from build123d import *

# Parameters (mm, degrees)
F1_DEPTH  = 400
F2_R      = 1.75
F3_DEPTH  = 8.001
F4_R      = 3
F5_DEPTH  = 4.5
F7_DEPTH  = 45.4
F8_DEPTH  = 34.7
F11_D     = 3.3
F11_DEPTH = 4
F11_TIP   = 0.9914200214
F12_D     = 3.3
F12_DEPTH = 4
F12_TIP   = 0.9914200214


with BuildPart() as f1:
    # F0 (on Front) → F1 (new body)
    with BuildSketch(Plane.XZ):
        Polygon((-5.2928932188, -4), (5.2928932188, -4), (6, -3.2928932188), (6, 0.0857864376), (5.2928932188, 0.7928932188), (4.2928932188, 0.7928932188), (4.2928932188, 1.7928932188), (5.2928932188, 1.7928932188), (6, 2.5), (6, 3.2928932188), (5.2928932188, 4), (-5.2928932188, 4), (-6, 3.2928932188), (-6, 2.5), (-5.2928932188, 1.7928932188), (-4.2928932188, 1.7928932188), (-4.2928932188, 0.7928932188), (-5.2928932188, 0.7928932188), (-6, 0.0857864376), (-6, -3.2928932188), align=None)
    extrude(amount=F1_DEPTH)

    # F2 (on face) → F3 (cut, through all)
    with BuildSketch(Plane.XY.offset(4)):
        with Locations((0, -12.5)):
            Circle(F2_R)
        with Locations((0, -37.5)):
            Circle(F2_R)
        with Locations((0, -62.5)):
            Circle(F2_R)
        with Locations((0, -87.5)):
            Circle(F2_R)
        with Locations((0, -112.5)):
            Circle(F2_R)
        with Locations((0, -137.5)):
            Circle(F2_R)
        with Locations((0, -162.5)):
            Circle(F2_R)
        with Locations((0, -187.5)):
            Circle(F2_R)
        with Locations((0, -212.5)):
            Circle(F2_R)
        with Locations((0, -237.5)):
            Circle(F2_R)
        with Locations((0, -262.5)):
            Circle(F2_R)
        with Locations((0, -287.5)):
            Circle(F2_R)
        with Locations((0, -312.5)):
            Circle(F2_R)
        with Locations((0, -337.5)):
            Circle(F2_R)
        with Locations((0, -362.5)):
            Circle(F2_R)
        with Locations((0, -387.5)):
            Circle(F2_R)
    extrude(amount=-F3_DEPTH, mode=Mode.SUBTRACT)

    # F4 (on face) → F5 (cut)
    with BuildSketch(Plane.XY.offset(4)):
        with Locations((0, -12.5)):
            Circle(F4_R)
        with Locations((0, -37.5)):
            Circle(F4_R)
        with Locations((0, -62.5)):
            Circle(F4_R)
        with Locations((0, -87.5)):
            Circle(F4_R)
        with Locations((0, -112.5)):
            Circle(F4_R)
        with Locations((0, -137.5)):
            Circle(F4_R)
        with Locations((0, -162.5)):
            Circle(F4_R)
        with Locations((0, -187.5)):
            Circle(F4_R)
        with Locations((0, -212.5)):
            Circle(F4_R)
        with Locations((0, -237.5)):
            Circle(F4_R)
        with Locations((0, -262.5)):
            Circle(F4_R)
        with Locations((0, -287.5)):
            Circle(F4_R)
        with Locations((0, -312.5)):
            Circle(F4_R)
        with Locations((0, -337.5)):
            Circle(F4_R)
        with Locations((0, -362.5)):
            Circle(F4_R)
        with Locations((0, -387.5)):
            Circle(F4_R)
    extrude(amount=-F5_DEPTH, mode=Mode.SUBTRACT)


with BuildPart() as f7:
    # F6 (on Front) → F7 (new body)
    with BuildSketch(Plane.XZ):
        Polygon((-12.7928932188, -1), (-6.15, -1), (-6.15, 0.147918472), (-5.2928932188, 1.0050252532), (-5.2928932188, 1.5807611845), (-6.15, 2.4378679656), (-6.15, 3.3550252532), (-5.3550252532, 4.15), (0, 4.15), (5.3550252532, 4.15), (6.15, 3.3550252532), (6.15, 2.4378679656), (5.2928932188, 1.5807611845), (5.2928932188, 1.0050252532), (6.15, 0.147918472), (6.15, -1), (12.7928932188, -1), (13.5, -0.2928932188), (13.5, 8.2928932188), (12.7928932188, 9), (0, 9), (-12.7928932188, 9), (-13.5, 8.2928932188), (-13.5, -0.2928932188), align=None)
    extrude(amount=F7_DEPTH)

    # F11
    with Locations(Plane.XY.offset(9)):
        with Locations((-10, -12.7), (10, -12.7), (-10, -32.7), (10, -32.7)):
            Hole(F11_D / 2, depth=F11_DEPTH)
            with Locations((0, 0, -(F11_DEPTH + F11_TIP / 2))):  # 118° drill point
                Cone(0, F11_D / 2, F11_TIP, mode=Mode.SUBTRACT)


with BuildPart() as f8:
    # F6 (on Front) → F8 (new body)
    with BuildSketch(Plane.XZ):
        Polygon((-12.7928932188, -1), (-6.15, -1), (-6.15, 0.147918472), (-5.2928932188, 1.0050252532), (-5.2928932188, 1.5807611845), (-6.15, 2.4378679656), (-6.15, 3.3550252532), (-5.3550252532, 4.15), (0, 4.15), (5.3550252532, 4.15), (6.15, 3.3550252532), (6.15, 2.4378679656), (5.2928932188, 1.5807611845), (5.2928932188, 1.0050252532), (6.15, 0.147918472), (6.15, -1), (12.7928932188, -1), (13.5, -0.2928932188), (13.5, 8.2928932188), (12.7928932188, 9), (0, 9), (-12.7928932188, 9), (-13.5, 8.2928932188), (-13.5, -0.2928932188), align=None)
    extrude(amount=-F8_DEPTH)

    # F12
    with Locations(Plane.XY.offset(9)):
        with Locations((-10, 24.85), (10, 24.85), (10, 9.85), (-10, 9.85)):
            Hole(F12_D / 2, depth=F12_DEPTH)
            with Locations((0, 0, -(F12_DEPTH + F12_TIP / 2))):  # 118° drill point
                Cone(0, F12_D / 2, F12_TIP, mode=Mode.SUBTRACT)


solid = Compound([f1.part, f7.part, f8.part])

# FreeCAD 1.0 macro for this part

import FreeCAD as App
import Part
import Sketcher
from FreeCAD import Vector
Q = App.Units.Quantity


def add_polygon(sketch, points):
    """Adds a closed chain of lines whose ends are joined by coincident constraints."""
    first, n = sketch.GeometryCount, len(points)
    for a, b in zip(points, points[1:] + points[:1]):
        sketch.addGeometry(Part.LineSegment(App.Vector(*a, 0), App.Vector(*b, 0)), False)
    for i in range(n):
        sketch.addConstraint(Sketcher.Constraint("Coincident", first + i, 2, first + (i + 1) % n, 1))

doc = App.newDocument("Part")
body = doc.addObject("PartDesign::Body", "Body")

# Sketch on XZ plane
sketch1 = body.newObject("Sketcher::SketchObject", "Sketch")
sketch1.AttachmentSupport = (doc.getObject("XZ_Plane"), [""])
sketch1.MapMode = "FlatFace"
add_polygon(sketch1, [(-5.3, -4), (5.3, -4), (6, -3.3), (6, 0.1), (5.3, 0.8), (4.3, 0.8), (4.3, 1.8), (5.3, 1.8), (6, 2.5), (6, 3.3), (5.3, 4), (-5.3, 4), (-6, 3.3), (-6, 2.5), (-5.3, 1.8), (-4.3, 1.8), (-4.3, 0.8), (-5.3, 0.8), (-6, 0.1), (-6, -3.3)])  # lines 0-19
sketch1.addConstraint(Sketcher.Constraint("Horizontal", 0))
sketch1.addConstraint(Sketcher.Constraint("Vertical", 2))
sketch1.addConstraint(Sketcher.Constraint("Horizontal", 4))
sketch1.addConstraint(Sketcher.Constraint("Vertical", 5))
sketch1.addConstraint(Sketcher.Constraint("Horizontal", 6))
sketch1.addConstraint(Sketcher.Constraint("Vertical", 8))
sketch1.addConstraint(Sketcher.Constraint("Horizontal", 10))
sketch1.addConstraint(Sketcher.Constraint("Vertical", 12))
sketch1.addConstraint(Sketcher.Constraint("Horizontal", 14))
sketch1.addConstraint(Sketcher.Constraint("Vertical", 15))
sketch1.addConstraint(Sketcher.Constraint("Horizontal", 16))
sketch1.addConstraint(Sketcher.Constraint("Vertical", 18))
sketch1.addConstraint(Sketcher.Constraint("Symmetric", 0, 2, 10, 2, -1, 1))
sketch1.addConstraint(Sketcher.Constraint("Symmetric", 1, 2, 11, 2, -1, 1))
sketch1.addConstraint(Sketcher.Constraint("Symmetric", 8, 2, 18, 2, -1, 1))
sketch1.addConstraint(Sketcher.Constraint("Symmetric", 8, 2, 11, 2, -2))
sketch1.addConstraint(Sketcher.Constraint("Symmetric", 6, 2, 13, 2, -2))
sketch1.addConstraint(Sketcher.Constraint("Symmetric", 4, 2, 15, 2, -2))
sketch1.addConstraint(Sketcher.Constraint("Perpendicular", 1, 3))
sketch1.addConstraint(Sketcher.Constraint("Perpendicular", 3, 7))
sketch1.addConstraint(Sketcher.Constraint("Perpendicular", 7, 9))
sketch1.addConstraint(Sketcher.Constraint("Perpendicular", 11, 13))
sketch1.addConstraint(Sketcher.Constraint("Perpendicular", 13, 17))
sketch1.addConstraint(Sketcher.Constraint("Perpendicular", 17, 19))
sketch1.addConstraint(Sketcher.Constraint("Horizontal", 7, 2, 12, 2))
sketch1.addConstraint(Sketcher.Constraint("Horizontal", 2, 2, 17, 2))
sketch1.addConstraint(Sketcher.Constraint("Vertical", 0, 2, 3, 2))
sketch1.addConstraint(Sketcher.Constraint("Vertical", 3, 2, 6, 2))
sketch1.addConstraint(Sketcher.Constraint("Equal", 16, 5))
sketch1.addConstraint(Sketcher.Constraint("DistanceX", 4, 2, 4, 1, Q("1 mm")))
sketch1.addConstraint(Sketcher.Constraint("Distance", 1, Q("1 mm")))
sketch1.addConstraint(Sketcher.Constraint("DistanceY", 0, 2, -1, 1, Q("4 mm")))
sketch1.addConstraint(Sketcher.Constraint("DistanceX", -1, 1, 1, 2, Q("6 mm")))
sketch1.addConstraint(Sketcher.Constraint("DistanceY", -1, 1, 7, 2, Q("2.5 mm")))
pad1 = body.newObject("PartDesign::Pad", "Pad")
pad1.Profile = sketch1
pad1.Length = 400

# Sketch on XY plane
sketch2 = body.newObject("Sketcher::SketchObject", "Sketch001")
sketch2.AttachmentSupport = (doc.getObject("XY_Plane"), [""])
sketch2.MapMode = "FlatFace"
sketch2.AttachmentOffset = App.Placement(Vector(0, 0, 4), App.Rotation())
sketch2.addGeometry(Part.Circle(Vector(0, -12.5, 0), Vector(0, 0, 1), 1.8), False)
sketch2.addGeometry(Part.Circle(Vector(0, -37.5, 0), Vector(0, 0, 1), 1.8), False)
sketch2.addGeometry(Part.Circle(Vector(0, -62.5, 0), Vector(0, 0, 1), 1.8), False)
sketch2.addGeometry(Part.Circle(Vector(0, -87.5, 0), Vector(0, 0, 1), 1.8), False)
sketch2.addGeometry(Part.Circle(Vector(0, -112.5, 0), Vector(0, 0, 1), 1.8), False)
sketch2.addGeometry(Part.Circle(Vector(0, -137.5, 0), Vector(0, 0, 1), 1.8), False)
sketch2.addGeometry(Part.Circle(Vector(0, -162.5, 0), Vector(0, 0, 1), 1.8), False)
sketch2.addGeometry(Part.Circle(Vector(0, -187.5, 0), Vector(0, 0, 1), 1.8), False)
sketch2.addGeometry(Part.Circle(Vector(0, -212.5, 0), Vector(0, 0, 1), 1.8), False)
sketch2.addGeometry(Part.Circle(Vector(0, -237.5, 0), Vector(0, 0, 1), 1.8), False)
sketch2.addGeometry(Part.Circle(Vector(0, -262.5, 0), Vector(0, 0, 1), 1.8), False)
sketch2.addGeometry(Part.Circle(Vector(0, -287.5, 0), Vector(0, 0, 1), 1.8), False)
sketch2.addGeometry(Part.Circle(Vector(0, -312.5, 0), Vector(0, 0, 1), 1.8), False)
sketch2.addGeometry(Part.Circle(Vector(0, -337.5, 0), Vector(0, 0, 1), 1.8), False)
sketch2.addGeometry(Part.Circle(Vector(0, -362.5, 0), Vector(0, 0, 1), 1.8), False)
sketch2.addGeometry(Part.Circle(Vector(0, -387.5, 0), Vector(0, 0, 1), 1.8), False)
sketch2.addConstraint(Sketcher.Constraint("Equal", 0, 1))
sketch2.addConstraint(Sketcher.Constraint("Equal", 1, 2))
sketch2.addConstraint(Sketcher.Constraint("Equal", 2, 3))
sketch2.addConstraint(Sketcher.Constraint("Equal", 3, 4))
sketch2.addConstraint(Sketcher.Constraint("Equal", 4, 5))
sketch2.addConstraint(Sketcher.Constraint("Equal", 5, 6))
sketch2.addConstraint(Sketcher.Constraint("Equal", 6, 7))
sketch2.addConstraint(Sketcher.Constraint("Equal", 7, 8))
sketch2.addConstraint(Sketcher.Constraint("Equal", 8, 9))
sketch2.addConstraint(Sketcher.Constraint("Equal", 9, 10))
sketch2.addConstraint(Sketcher.Constraint("Equal", 10, 11))
sketch2.addConstraint(Sketcher.Constraint("Equal", 11, 12))
sketch2.addConstraint(Sketcher.Constraint("Equal", 12, 13))
sketch2.addConstraint(Sketcher.Constraint("Equal", 13, 14))
sketch2.addConstraint(Sketcher.Constraint("Equal", 14, 15))
sketch2.addConstraint(Sketcher.Constraint("PointOnObject", 0, 3, -2))
sketch2.addConstraint(Sketcher.Constraint("PointOnObject", 1, 3, -2))
sketch2.addConstraint(Sketcher.Constraint("PointOnObject", 2, 3, -2))
sketch2.addConstraint(Sketcher.Constraint("PointOnObject", 3, 3, -2))
sketch2.addConstraint(Sketcher.Constraint("PointOnObject", 4, 3, -2))
sketch2.addConstraint(Sketcher.Constraint("PointOnObject", 5, 3, -2))
sketch2.addConstraint(Sketcher.Constraint("PointOnObject", 6, 3, -2))
sketch2.addConstraint(Sketcher.Constraint("PointOnObject", 7, 3, -2))
sketch2.addConstraint(Sketcher.Constraint("PointOnObject", 8, 3, -2))
sketch2.addConstraint(Sketcher.Constraint("PointOnObject", 9, 3, -2))
sketch2.addConstraint(Sketcher.Constraint("PointOnObject", 10, 3, -2))
sketch2.addConstraint(Sketcher.Constraint("PointOnObject", 11, 3, -2))
sketch2.addConstraint(Sketcher.Constraint("PointOnObject", 12, 3, -2))
sketch2.addConstraint(Sketcher.Constraint("PointOnObject", 13, 3, -2))
sketch2.addConstraint(Sketcher.Constraint("PointOnObject", 14, 3, -2))
sketch2.addConstraint(Sketcher.Constraint("PointOnObject", 15, 3, -2))
sketch2.addConstraint(Sketcher.Constraint("Diameter", 0, Q("3.5 mm")))
sketch2.addConstraint(Sketcher.Constraint("DistanceY", 1, 3, 0, 3, Q("25 mm")))
sketch2.addConstraint(Sketcher.Constraint("DistanceY", 2, 3, 1, 3, Q("25 mm")))
sketch2.addConstraint(Sketcher.Constraint("DistanceY", 3, 3, 2, 3, Q("25 mm")))
sketch2.addConstraint(Sketcher.Constraint("DistanceY", 4, 3, 3, 3, Q("25 mm")))
sketch2.addConstraint(Sketcher.Constraint("DistanceY", 5, 3, 4, 3, Q("25 mm")))
sketch2.addConstraint(Sketcher.Constraint("DistanceY", 6, 3, 5, 3, Q("25 mm")))
sketch2.addConstraint(Sketcher.Constraint("DistanceY", 7, 3, 6, 3, Q("25 mm")))
sketch2.addConstraint(Sketcher.Constraint("DistanceY", 8, 3, 7, 3, Q("25 mm")))
sketch2.addConstraint(Sketcher.Constraint("DistanceY", 9, 3, 8, 3, Q("25 mm")))
sketch2.addConstraint(Sketcher.Constraint("DistanceY", 10, 3, 9, 3, Q("25 mm")))
sketch2.addConstraint(Sketcher.Constraint("DistanceY", 11, 3, 10, 3, Q("25 mm")))
sketch2.addConstraint(Sketcher.Constraint("DistanceY", 12, 3, 11, 3, Q("25 mm")))
sketch2.addConstraint(Sketcher.Constraint("DistanceY", 13, 3, 12, 3, Q("25 mm")))
sketch2.addConstraint(Sketcher.Constraint("DistanceY", 14, 3, 13, 3, Q("25 mm")))
sketch2.addConstraint(Sketcher.Constraint("DistanceY", 15, 3, 14, 3, Q("25 mm")))
sketch2.addConstraint(Sketcher.Constraint("DistanceY", 0, 3, -1, 1, Q("12.5 mm")))
pocket1 = body.newObject("PartDesign::Pocket", "Pocket")
pocket1.Profile = sketch2
pocket1.Type = "ThroughAll"

# Sketch on XY plane
sketch3 = body.newObject("Sketcher::SketchObject", "Sketch002")
sketch3.AttachmentSupport = (doc.getObject("XY_Plane"), [""])
sketch3.MapMode = "FlatFace"
sketch3.AttachmentOffset = App.Placement(Vector(0, 0, 4), App.Rotation())
sketch3.addGeometry(Part.Circle(Vector(0, -12.5, 0), Vector(0, 0, 1), 3), False)
sketch3.addGeometry(Part.Circle(Vector(0, -37.5, 0), Vector(0, 0, 1), 3), False)
sketch3.addGeometry(Part.Circle(Vector(0, -62.5, 0), Vector(0, 0, 1), 3), False)
sketch3.addGeometry(Part.Circle(Vector(0, -87.5, 0), Vector(0, 0, 1), 3), False)
sketch3.addGeometry(Part.Circle(Vector(0, -112.5, 0), Vector(0, 0, 1), 3), False)
sketch3.addGeometry(Part.Circle(Vector(0, -137.5, 0), Vector(0, 0, 1), 3), False)
sketch3.addGeometry(Part.Circle(Vector(0, -162.5, 0), Vector(0, 0, 1), 3), False)
sketch3.addGeometry(Part.Circle(Vector(0, -187.5, 0), Vector(0, 0, 1), 3), False)
sketch3.addGeometry(Part.Circle(Vector(0, -212.5, 0), Vector(0, 0, 1), 3), False)
sketch3.addGeometry(Part.Circle(Vector(0, -237.5, 0), Vector(0, 0, 1), 3), False)
sketch3.addGeometry(Part.Circle(Vector(0, -262.5, 0), Vector(0, 0, 1), 3), False)
sketch3.addGeometry(Part.Circle(Vector(0, -287.5, 0), Vector(0, 0, 1), 3), False)
sketch3.addGeometry(Part.Circle(Vector(0, -312.5, 0), Vector(0, 0, 1), 3), False)
sketch3.addGeometry(Part.Circle(Vector(0, -337.5, 0), Vector(0, 0, 1), 3), False)
sketch3.addGeometry(Part.Circle(Vector(0, -362.5, 0), Vector(0, 0, 1), 3), False)
sketch3.addGeometry(Part.Circle(Vector(0, -387.5, 0), Vector(0, 0, 1), 3), False)
sketch3.addConstraint(Sketcher.Constraint("Equal", 0, 1))
sketch3.addConstraint(Sketcher.Constraint("Equal", 1, 2))
sketch3.addConstraint(Sketcher.Constraint("Equal", 2, 3))
sketch3.addConstraint(Sketcher.Constraint("Equal", 3, 4))
sketch3.addConstraint(Sketcher.Constraint("Equal", 4, 5))
sketch3.addConstraint(Sketcher.Constraint("Equal", 5, 6))
sketch3.addConstraint(Sketcher.Constraint("Equal", 6, 7))
sketch3.addConstraint(Sketcher.Constraint("Equal", 7, 8))
sketch3.addConstraint(Sketcher.Constraint("Equal", 8, 9))
sketch3.addConstraint(Sketcher.Constraint("Equal", 9, 10))
sketch3.addConstraint(Sketcher.Constraint("Equal", 10, 11))
sketch3.addConstraint(Sketcher.Constraint("Equal", 11, 12))
sketch3.addConstraint(Sketcher.Constraint("Equal", 12, 13))
sketch3.addConstraint(Sketcher.Constraint("Equal", 13, 14))
sketch3.addConstraint(Sketcher.Constraint("Equal", 14, 15))
sketch3.addConstraint(Sketcher.Constraint("PointOnObject", 0, 3, -2))
sketch3.addConstraint(Sketcher.Constraint("PointOnObject", 1, 3, -2))
sketch3.addConstraint(Sketcher.Constraint("PointOnObject", 2, 3, -2))
sketch3.addConstraint(Sketcher.Constraint("PointOnObject", 3, 3, -2))
sketch3.addConstraint(Sketcher.Constraint("PointOnObject", 4, 3, -2))
sketch3.addConstraint(Sketcher.Constraint("PointOnObject", 5, 3, -2))
sketch3.addConstraint(Sketcher.Constraint("PointOnObject", 6, 3, -2))
sketch3.addConstraint(Sketcher.Constraint("PointOnObject", 7, 3, -2))
sketch3.addConstraint(Sketcher.Constraint("PointOnObject", 8, 3, -2))
sketch3.addConstraint(Sketcher.Constraint("PointOnObject", 9, 3, -2))
sketch3.addConstraint(Sketcher.Constraint("PointOnObject", 10, 3, -2))
sketch3.addConstraint(Sketcher.Constraint("PointOnObject", 11, 3, -2))
sketch3.addConstraint(Sketcher.Constraint("PointOnObject", 12, 3, -2))
sketch3.addConstraint(Sketcher.Constraint("PointOnObject", 13, 3, -2))
sketch3.addConstraint(Sketcher.Constraint("PointOnObject", 14, 3, -2))
sketch3.addConstraint(Sketcher.Constraint("PointOnObject", 15, 3, -2))
sketch3.addConstraint(Sketcher.Constraint("Diameter", 0, Q("6 mm")))
sketch3.addConstraint(Sketcher.Constraint("DistanceY", 1, 3, 0, 3, Q("25 mm")))
sketch3.addConstraint(Sketcher.Constraint("DistanceY", 2, 3, 1, 3, Q("25 mm")))
sketch3.addConstraint(Sketcher.Constraint("DistanceY", 3, 3, 2, 3, Q("25 mm")))
sketch3.addConstraint(Sketcher.Constraint("DistanceY", 4, 3, 3, 3, Q("25 mm")))
sketch3.addConstraint(Sketcher.Constraint("DistanceY", 5, 3, 4, 3, Q("25 mm")))
sketch3.addConstraint(Sketcher.Constraint("DistanceY", 6, 3, 5, 3, Q("25 mm")))
sketch3.addConstraint(Sketcher.Constraint("DistanceY", 7, 3, 6, 3, Q("25 mm")))
sketch3.addConstraint(Sketcher.Constraint("DistanceY", 8, 3, 7, 3, Q("25 mm")))
sketch3.addConstraint(Sketcher.Constraint("DistanceY", 9, 3, 8, 3, Q("25 mm")))
sketch3.addConstraint(Sketcher.Constraint("DistanceY", 10, 3, 9, 3, Q("25 mm")))
sketch3.addConstraint(Sketcher.Constraint("DistanceY", 11, 3, 10, 3, Q("25 mm")))
sketch3.addConstraint(Sketcher.Constraint("DistanceY", 12, 3, 11, 3, Q("25 mm")))
sketch3.addConstraint(Sketcher.Constraint("DistanceY", 13, 3, 12, 3, Q("25 mm")))
sketch3.addConstraint(Sketcher.Constraint("DistanceY", 14, 3, 13, 3, Q("25 mm")))
sketch3.addConstraint(Sketcher.Constraint("DistanceY", 15, 3, 14, 3, Q("25 mm")))
sketch3.addConstraint(Sketcher.Constraint("DistanceY", 0, 3, -1, 1, Q("12.5 mm")))
pocket2 = body.newObject("PartDesign::Pocket", "Pocket001")
pocket2.Profile = sketch3
pocket2.Length = 4.5
body2 = doc.addObject("PartDesign::Body", "Body001")

# Sketch on XZ plane
sketch4 = body2.newObject("Sketcher::SketchObject", "Sketch003")
sketch4.AttachmentSupport = (doc.getObject("XZ_Plane001"), [""])
sketch4.MapMode = "FlatFace"
add_polygon(sketch4, [(-12.8, -1), (-6.2, -1), (-6.2, 0.1), (-5.3, 1), (-5.3, 1.6), (-6.2, 2.4), (-6.2, 3.4), (-5.4, 4.2), (5.4, 4.2), (6.2, 3.4), (6.2, 2.4), (5.3, 1.6), (5.3, 1), (6.2, 0.1), (6.2, -1), (12.8, -1), (13.5, -0.3), (13.5, 8.3), (12.8, 9), (-12.8, 9), (-13.5, 8.3), (-13.5, -0.3)])  # lines 0-21
sketch4.addConstraint(Sketcher.Constraint("Horizontal", 0))
sketch4.addConstraint(Sketcher.Constraint("Vertical", 1))
sketch4.addConstraint(Sketcher.Constraint("Vertical", 3))
sketch4.addConstraint(Sketcher.Constraint("Vertical", 5))
sketch4.addConstraint(Sketcher.Constraint("Horizontal", 7))
sketch4.addConstraint(Sketcher.Constraint("Vertical", 9))
sketch4.addConstraint(Sketcher.Constraint("Vertical", 11))
sketch4.addConstraint(Sketcher.Constraint("Vertical", 13))
sketch4.addConstraint(Sketcher.Constraint("Horizontal", 14))
sketch4.addConstraint(Sketcher.Constraint("Vertical", 16))
sketch4.addConstraint(Sketcher.Constraint("Horizontal", 18))
sketch4.addConstraint(Sketcher.Constraint("Vertical", 20))
sketch4.addConstraint(Sketcher.Constraint("Symmetric", 5, 2, 8, 2, -2))
sketch4.addConstraint(Sketcher.Constraint("Symmetric", 3, 2, 10, 2, -2))
sketch4.addConstraint(Sketcher.Constraint("Symmetric", 1, 2, 12, 2, -2))
sketch4.addConstraint(Sketcher.Constraint("Symmetric", 16, 2, 19, 2, -2))
sketch4.addConstraint(Sketcher.Constraint("Symmetric", 14, 2, 21, 2, -2))
sketch4.addConstraint(Sketcher.Constraint("Perpendicular", 2, 4))
sketch4.addConstraint(Sketcher.Constraint("Perpendicular", 4, 6))
sketch4.addConstraint(Sketcher.Constraint("Perpendicular", 6, 8))
sketch4.addConstraint(Sketcher.Constraint("Perpendicular", 8, 10))
sketch4.addConstraint(Sketcher.Constraint("Perpendicular", 10, 12))
sketch4.addConstraint(Sketcher.Constraint("Perpendicular", 12, 15))
sketch4.addConstraint(Sketcher.Constraint("Perpendicular", 15, 17))
sketch4.addConstraint(Sketcher.Constraint("Perpendicular", 17, 19))
sketch4.addConstraint(Sketcher.Constraint("Perpendicular", 19, 21))
sketch4.addConstraint(Sketcher.Constraint("Horizontal", 4, 2, 9, 2))
sketch4.addConstraint(Sketcher.Constraint("Vertical", 1, 2, 4, 2))
sketch4.addConstraint(Sketcher.Constraint("Vertical", 14, 2, 17, 2))
sketch4.addConstraint(Sketcher.Constraint("Distance", 15, Q("1 mm")))
sketch4.addConstraint(Sketcher.Constraint("DistanceY", 0, 2, -1, 1, Q("1 mm")))
sketch4.addConstraint(Sketcher.Constraint("DistanceY", -1, 1, 17, 2, Q("9 mm")))
sketch4.addConstraint(Sketcher.Constraint("DistanceX", -1, 1, 15, 2, Q("13.5 mm")))
sketch4.addConstraint(Sketcher.Constraint("DistanceX", 5, 2, 8, 2, Q("12.3 mm")))
sketch4.addConstraint(Sketcher.Constraint("DistanceX", 11, 2, 14, 2, Q("7.5 mm")))
sketch4.addConstraint(Sketcher.Constraint("DistanceY", -1, 1, 6, 2, Q("4.15 mm")))
sketch4.addConstraint(Sketcher.Constraint("DistanceY", 2, 2, 5, 2, Q("2.35 mm")))
sketch4.addConstraint(Sketcher.Constraint("DistanceX", 7, 1, 7, 2, Q("10.710051 mm")))
sketch4.addConstraint(Sketcher.Constraint("DistanceY", 3, 1, 3, 2, Q("0.575736 mm")))
pad2 = body2.newObject("PartDesign::Pad", "Pad001")
pad2.Profile = sketch4
pad2.Length = 45.4

# Sketch on XY plane
sketch5 = body2.newObject("Sketcher::SketchObject", "Sketch004")
sketch5.AttachmentSupport = (doc.getObject("XY_Plane001"), [""])
sketch5.MapMode = "FlatFace"
sketch5.AttachmentOffset = App.Placement(Vector(0, 0, 9), App.Rotation())
sketch5.addGeometry(Part.Circle(Vector(-10, -12.7, 0), Vector(0, 0, 1), 1.6), False)
sketch5.addGeometry(Part.Circle(Vector(10, -12.7, 0), Vector(0, 0, 1), 1.6), False)
sketch5.addGeometry(Part.Circle(Vector(-10, -32.7, 0), Vector(0, 0, 1), 1.6), False)
sketch5.addGeometry(Part.Circle(Vector(10, -32.7, 0), Vector(0, 0, 1), 1.6), False)
sketch5.addConstraint(Sketcher.Constraint("Equal", 0, 1))
sketch5.addConstraint(Sketcher.Constraint("Equal", 1, 2))
sketch5.addConstraint(Sketcher.Constraint("Equal", 2, 3))
sketch5.addConstraint(Sketcher.Constraint("Symmetric", 0, 3, 1, 3, -2))
sketch5.addConstraint(Sketcher.Constraint("Symmetric", 2, 3, 3, 3, -2))
sketch5.addConstraint(Sketcher.Constraint("Vertical", 0, 3, 2, 3))
sketch5.addConstraint(Sketcher.Constraint("Diameter", 0, Q("3.3 mm")))
sketch5.addConstraint(Sketcher.Constraint("DistanceX", 0, 3, -1, 1, Q("10 mm")))
sketch5.addConstraint(Sketcher.Constraint("DistanceY", 2, 3, 0, 3, Q("20 mm")))
sketch5.addConstraint(Sketcher.Constraint("DistanceY", 0, 3, -1, 1, Q("12.7 mm")))
doc.recompute()
hole = body2.newObject("PartDesign::Hole", "Hole")
hole.Profile = sketch5
hole.ThreadType = "None"
hole.Diameter = 3.3
hole.DepthType = "Dimension"
hole.Depth = 4
hole.DrillPoint = "Angled"
hole.DrillPointAngle = 118
body3 = doc.addObject("PartDesign::Body", "Body002")

# Sketch on XZ plane
sketch6 = body3.newObject("Sketcher::SketchObject", "Sketch005")
sketch6.AttachmentSupport = (doc.getObject("XZ_Plane002"), [""])
sketch6.MapMode = "FlatFace"
add_polygon(sketch6, [(-12.8, -1), (-6.2, -1), (-6.2, 0.1), (-5.3, 1), (-5.3, 1.6), (-6.2, 2.4), (-6.2, 3.4), (-5.4, 4.2), (5.4, 4.2), (6.2, 3.4), (6.2, 2.4), (5.3, 1.6), (5.3, 1), (6.2, 0.1), (6.2, -1), (12.8, -1), (13.5, -0.3), (13.5, 8.3), (12.8, 9), (-12.8, 9), (-13.5, 8.3), (-13.5, -0.3)])  # lines 0-21
sketch6.addConstraint(Sketcher.Constraint("Horizontal", 0))
sketch6.addConstraint(Sketcher.Constraint("Vertical", 1))
sketch6.addConstraint(Sketcher.Constraint("Vertical", 3))
sketch6.addConstraint(Sketcher.Constraint("Vertical", 5))
sketch6.addConstraint(Sketcher.Constraint("Horizontal", 7))
sketch6.addConstraint(Sketcher.Constraint("Vertical", 9))
sketch6.addConstraint(Sketcher.Constraint("Vertical", 11))
sketch6.addConstraint(Sketcher.Constraint("Vertical", 13))
sketch6.addConstraint(Sketcher.Constraint("Horizontal", 14))
sketch6.addConstraint(Sketcher.Constraint("Vertical", 16))
sketch6.addConstraint(Sketcher.Constraint("Horizontal", 18))
sketch6.addConstraint(Sketcher.Constraint("Vertical", 20))
sketch6.addConstraint(Sketcher.Constraint("Symmetric", 5, 2, 8, 2, -2))
sketch6.addConstraint(Sketcher.Constraint("Symmetric", 3, 2, 10, 2, -2))
sketch6.addConstraint(Sketcher.Constraint("Symmetric", 1, 2, 12, 2, -2))
sketch6.addConstraint(Sketcher.Constraint("Symmetric", 16, 2, 19, 2, -2))
sketch6.addConstraint(Sketcher.Constraint("Symmetric", 14, 2, 21, 2, -2))
sketch6.addConstraint(Sketcher.Constraint("Perpendicular", 2, 4))
sketch6.addConstraint(Sketcher.Constraint("Perpendicular", 4, 6))
sketch6.addConstraint(Sketcher.Constraint("Perpendicular", 6, 8))
sketch6.addConstraint(Sketcher.Constraint("Perpendicular", 8, 10))
sketch6.addConstraint(Sketcher.Constraint("Perpendicular", 10, 12))
sketch6.addConstraint(Sketcher.Constraint("Perpendicular", 12, 15))
sketch6.addConstraint(Sketcher.Constraint("Perpendicular", 15, 17))
sketch6.addConstraint(Sketcher.Constraint("Perpendicular", 17, 19))
sketch6.addConstraint(Sketcher.Constraint("Perpendicular", 19, 21))
sketch6.addConstraint(Sketcher.Constraint("Horizontal", 4, 2, 9, 2))
sketch6.addConstraint(Sketcher.Constraint("Vertical", 1, 2, 4, 2))
sketch6.addConstraint(Sketcher.Constraint("Vertical", 14, 2, 17, 2))
sketch6.addConstraint(Sketcher.Constraint("Distance", 15, Q("1 mm")))
sketch6.addConstraint(Sketcher.Constraint("DistanceY", 0, 2, -1, 1, Q("1 mm")))
sketch6.addConstraint(Sketcher.Constraint("DistanceY", -1, 1, 17, 2, Q("9 mm")))
sketch6.addConstraint(Sketcher.Constraint("DistanceX", -1, 1, 15, 2, Q("13.5 mm")))
sketch6.addConstraint(Sketcher.Constraint("DistanceX", 5, 2, 8, 2, Q("12.3 mm")))
sketch6.addConstraint(Sketcher.Constraint("DistanceX", 11, 2, 14, 2, Q("7.5 mm")))
sketch6.addConstraint(Sketcher.Constraint("DistanceY", -1, 1, 6, 2, Q("4.15 mm")))
sketch6.addConstraint(Sketcher.Constraint("DistanceY", 2, 2, 5, 2, Q("2.35 mm")))
sketch6.addConstraint(Sketcher.Constraint("DistanceX", 7, 1, 7, 2, Q("10.710051 mm")))
sketch6.addConstraint(Sketcher.Constraint("DistanceY", 3, 1, 3, 2, Q("0.575736 mm")))
pad3 = body3.newObject("PartDesign::Pad", "Pad002")
pad3.Profile = sketch6
pad3.Length = 34.7
pad3.Reversed = True

# Sketch on XY plane
sketch7 = body3.newObject("Sketcher::SketchObject", "Sketch006")
sketch7.AttachmentSupport = (doc.getObject("XY_Plane002"), [""])
sketch7.MapMode = "FlatFace"
sketch7.AttachmentOffset = App.Placement(Vector(0, 0, 9), App.Rotation())
sketch7.addGeometry(Part.Circle(Vector(-10, 24.9, 0), Vector(0, 0, 1), 1.6), False)
sketch7.addGeometry(Part.Circle(Vector(10, 24.9, 0), Vector(0, 0, 1), 1.6), False)
sketch7.addGeometry(Part.Circle(Vector(10, 9.8, 0), Vector(0, 0, 1), 1.6), False)
sketch7.addGeometry(Part.Circle(Vector(-10, 9.8, 0), Vector(0, 0, 1), 1.6), False)
sketch7.addConstraint(Sketcher.Constraint("Equal", 0, 1))
sketch7.addConstraint(Sketcher.Constraint("Equal", 1, 2))
sketch7.addConstraint(Sketcher.Constraint("Equal", 2, 3))
sketch7.addConstraint(Sketcher.Constraint("Symmetric", 0, 3, 1, 3, -2))
sketch7.addConstraint(Sketcher.Constraint("Symmetric", 2, 3, 3, 3, -2))
sketch7.addConstraint(Sketcher.Constraint("Vertical", 1, 3, 2, 3))
sketch7.addConstraint(Sketcher.Constraint("Diameter", 0, Q("3.3 mm")))
sketch7.addConstraint(Sketcher.Constraint("DistanceX", 0, 3, -1, 1, Q("10 mm")))
sketch7.addConstraint(Sketcher.Constraint("DistanceY", 2, 3, 1, 3, Q("15 mm")))
sketch7.addConstraint(Sketcher.Constraint("DistanceY", -1, 1, 0, 3, Q("24.85 mm")))
doc.recompute()
hole2 = body3.newObject("PartDesign::Hole", "Hole001")
hole2.Profile = sketch7
hole2.ThreadType = "None"
hole2.Diameter = 3.3
hole2.DepthType = "Dimension"
hole2.Depth = 4
hole2.DrillPoint = "Angled"
hole2.DrillPointAngle = 118

doc.recompute()
